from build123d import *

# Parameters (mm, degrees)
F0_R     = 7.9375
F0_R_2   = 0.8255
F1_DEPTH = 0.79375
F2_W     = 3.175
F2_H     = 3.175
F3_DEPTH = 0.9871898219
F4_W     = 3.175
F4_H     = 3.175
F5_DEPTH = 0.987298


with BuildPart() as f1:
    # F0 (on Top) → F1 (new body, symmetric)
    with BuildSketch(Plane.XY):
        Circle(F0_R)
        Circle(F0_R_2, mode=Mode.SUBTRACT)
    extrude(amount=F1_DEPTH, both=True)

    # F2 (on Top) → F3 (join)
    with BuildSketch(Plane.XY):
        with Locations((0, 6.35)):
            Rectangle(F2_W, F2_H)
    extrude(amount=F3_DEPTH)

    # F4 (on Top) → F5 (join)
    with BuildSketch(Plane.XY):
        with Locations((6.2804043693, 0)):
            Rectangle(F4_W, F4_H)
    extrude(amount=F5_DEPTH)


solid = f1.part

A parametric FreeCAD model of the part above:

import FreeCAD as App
import Part
import Sketcher
from FreeCAD import Vector
Q = App.Units.Quantity


def add_polygon(sketch, points):
    """Adds a closed chain of lines whose ends are joined by coincident constraints."""
    first, n = sketch.GeometryCount, len(points)
    for a, b in zip(points, points[1:] + points[:1]):
        sketch.addGeometry(Part.LineSegment(App.Vector(*a, 0), App.Vector(*b, 0)), False)
    for i in range(n):
        sketch.addConstraint(Sketcher.Constraint("Coincident", first + i, 2, first + (i + 1) % n, 1))

doc = App.newDocument("Part")
body = doc.addObject("PartDesign::Body", "Body")

sketch1 = body.newObject("Sketcher::SketchObject", "Sketch")
sketch1.AttachmentSupport = (doc.getObject("XY_Plane"), [""])
sketch1.MapMode = "FlatFace"
sketch1.addGeometry(Part.Circle(Vector(0, 0, 0), Vector(0, 0, 1), 7.9), False)
sketch1.addGeometry(Part.Circle(Vector(0, 0, 0), Vector(0, 0, 1), 0.8), False)
sketch1.addConstraint(Sketcher.Constraint("Coincident", 0, 3, -1, 1))
sketch1.addConstraint(Sketcher.Constraint("Coincident", 1, 3, -1, 1))
sketch1.addConstraint(Sketcher.Constraint("Diameter", 0, Q("0.625 in")))
sketch1.addConstraint(Sketcher.Constraint("Diameter", 1, Q("0.065 in")))
pad1 = body.newObject("PartDesign::Pad", "Pad")
pad1.Profile = sketch1
pad1.Length = Q("0.0625 in")
pad1.Midplane = True

sketch2 = body.newObject("Sketcher::SketchObject", "Sketch001")
sketch2.AttachmentSupport = (doc.getObject("XY_Plane"), [""])
sketch2.MapMode = "FlatFace"
add_polygon(sketch2, [(-1.6, 7.9), (-1.6, 4.8), (1.6, 4.8), (1.6, 7.9)])
sketch2.addConstraint(Sketcher.Constraint("Vertical", 0))
sketch2.addConstraint(Sketcher.Constraint("Horizontal", 1))
sketch2.addConstraint(Sketcher.Constraint("Vertical", 2))
sketch2.addConstraint(Sketcher.Constraint("Horizontal", 3))
sketch2.addConstraint(Sketcher.Constraint("Equal", 3, 0))
sketch2.addConstraint(Sketcher.Constraint("DistanceX", 1, 1, 1, 2, Q("0.125 in")))
sketch2.addConstraint(Sketcher.Constraint("DistanceX", 0, 2, -1, 1, Q("0.0625 in")))
sketch2.addConstraint(Sketcher.Constraint("DistanceY", -1, 1, 0, 2, Q("0.1875 in")))
pad2 = body.newObject("PartDesign::Pad", "Pad001")
pad2.Profile = sketch2
pad2.Length = 0.98719

sketch3 = body.newObject("Sketcher::SketchObject", "Sketch002")
sketch3.AttachmentSupport = (doc.getObject("XY_Plane"), [""])
sketch3.MapMode = "FlatFace"
add_polygon(sketch3, [(4.7, 1.6), (4.7, -1.6), (7.9, -1.6), (7.9, 1.6)])
sketch3.addConstraint(Sketcher.Constraint("Vertical", 0))
sketch3.addConstraint(Sketcher.Constraint("Horizontal", 1))
sketch3.addConstraint(Sketcher.Constraint("Vertical", 2))
sketch3.addConstraint(Sketcher.Constraint("Horizontal", 3))
sketch3.addConstraint(Sketcher.Constraint("Equal", 3, 0))
sketch3.addConstraint(Sketcher.Constraint("DistanceX", 1, 1, 1, 2, Q("0.125 in")))
sketch3.addConstraint(Sketcher.Constraint("DistanceY", 0, 2, -1, 1, Q("0.0625 in")))
sketch3.addConstraint(Sketcher.Constraint("DistanceX", -1, 1, 0, 2, Q("4.692904 mm")))
pad3 = body.newObject("PartDesign::Pad", "Pad002")
pad3.Profile = sketch3
pad3.Length = 0.987298

doc.recompute()
